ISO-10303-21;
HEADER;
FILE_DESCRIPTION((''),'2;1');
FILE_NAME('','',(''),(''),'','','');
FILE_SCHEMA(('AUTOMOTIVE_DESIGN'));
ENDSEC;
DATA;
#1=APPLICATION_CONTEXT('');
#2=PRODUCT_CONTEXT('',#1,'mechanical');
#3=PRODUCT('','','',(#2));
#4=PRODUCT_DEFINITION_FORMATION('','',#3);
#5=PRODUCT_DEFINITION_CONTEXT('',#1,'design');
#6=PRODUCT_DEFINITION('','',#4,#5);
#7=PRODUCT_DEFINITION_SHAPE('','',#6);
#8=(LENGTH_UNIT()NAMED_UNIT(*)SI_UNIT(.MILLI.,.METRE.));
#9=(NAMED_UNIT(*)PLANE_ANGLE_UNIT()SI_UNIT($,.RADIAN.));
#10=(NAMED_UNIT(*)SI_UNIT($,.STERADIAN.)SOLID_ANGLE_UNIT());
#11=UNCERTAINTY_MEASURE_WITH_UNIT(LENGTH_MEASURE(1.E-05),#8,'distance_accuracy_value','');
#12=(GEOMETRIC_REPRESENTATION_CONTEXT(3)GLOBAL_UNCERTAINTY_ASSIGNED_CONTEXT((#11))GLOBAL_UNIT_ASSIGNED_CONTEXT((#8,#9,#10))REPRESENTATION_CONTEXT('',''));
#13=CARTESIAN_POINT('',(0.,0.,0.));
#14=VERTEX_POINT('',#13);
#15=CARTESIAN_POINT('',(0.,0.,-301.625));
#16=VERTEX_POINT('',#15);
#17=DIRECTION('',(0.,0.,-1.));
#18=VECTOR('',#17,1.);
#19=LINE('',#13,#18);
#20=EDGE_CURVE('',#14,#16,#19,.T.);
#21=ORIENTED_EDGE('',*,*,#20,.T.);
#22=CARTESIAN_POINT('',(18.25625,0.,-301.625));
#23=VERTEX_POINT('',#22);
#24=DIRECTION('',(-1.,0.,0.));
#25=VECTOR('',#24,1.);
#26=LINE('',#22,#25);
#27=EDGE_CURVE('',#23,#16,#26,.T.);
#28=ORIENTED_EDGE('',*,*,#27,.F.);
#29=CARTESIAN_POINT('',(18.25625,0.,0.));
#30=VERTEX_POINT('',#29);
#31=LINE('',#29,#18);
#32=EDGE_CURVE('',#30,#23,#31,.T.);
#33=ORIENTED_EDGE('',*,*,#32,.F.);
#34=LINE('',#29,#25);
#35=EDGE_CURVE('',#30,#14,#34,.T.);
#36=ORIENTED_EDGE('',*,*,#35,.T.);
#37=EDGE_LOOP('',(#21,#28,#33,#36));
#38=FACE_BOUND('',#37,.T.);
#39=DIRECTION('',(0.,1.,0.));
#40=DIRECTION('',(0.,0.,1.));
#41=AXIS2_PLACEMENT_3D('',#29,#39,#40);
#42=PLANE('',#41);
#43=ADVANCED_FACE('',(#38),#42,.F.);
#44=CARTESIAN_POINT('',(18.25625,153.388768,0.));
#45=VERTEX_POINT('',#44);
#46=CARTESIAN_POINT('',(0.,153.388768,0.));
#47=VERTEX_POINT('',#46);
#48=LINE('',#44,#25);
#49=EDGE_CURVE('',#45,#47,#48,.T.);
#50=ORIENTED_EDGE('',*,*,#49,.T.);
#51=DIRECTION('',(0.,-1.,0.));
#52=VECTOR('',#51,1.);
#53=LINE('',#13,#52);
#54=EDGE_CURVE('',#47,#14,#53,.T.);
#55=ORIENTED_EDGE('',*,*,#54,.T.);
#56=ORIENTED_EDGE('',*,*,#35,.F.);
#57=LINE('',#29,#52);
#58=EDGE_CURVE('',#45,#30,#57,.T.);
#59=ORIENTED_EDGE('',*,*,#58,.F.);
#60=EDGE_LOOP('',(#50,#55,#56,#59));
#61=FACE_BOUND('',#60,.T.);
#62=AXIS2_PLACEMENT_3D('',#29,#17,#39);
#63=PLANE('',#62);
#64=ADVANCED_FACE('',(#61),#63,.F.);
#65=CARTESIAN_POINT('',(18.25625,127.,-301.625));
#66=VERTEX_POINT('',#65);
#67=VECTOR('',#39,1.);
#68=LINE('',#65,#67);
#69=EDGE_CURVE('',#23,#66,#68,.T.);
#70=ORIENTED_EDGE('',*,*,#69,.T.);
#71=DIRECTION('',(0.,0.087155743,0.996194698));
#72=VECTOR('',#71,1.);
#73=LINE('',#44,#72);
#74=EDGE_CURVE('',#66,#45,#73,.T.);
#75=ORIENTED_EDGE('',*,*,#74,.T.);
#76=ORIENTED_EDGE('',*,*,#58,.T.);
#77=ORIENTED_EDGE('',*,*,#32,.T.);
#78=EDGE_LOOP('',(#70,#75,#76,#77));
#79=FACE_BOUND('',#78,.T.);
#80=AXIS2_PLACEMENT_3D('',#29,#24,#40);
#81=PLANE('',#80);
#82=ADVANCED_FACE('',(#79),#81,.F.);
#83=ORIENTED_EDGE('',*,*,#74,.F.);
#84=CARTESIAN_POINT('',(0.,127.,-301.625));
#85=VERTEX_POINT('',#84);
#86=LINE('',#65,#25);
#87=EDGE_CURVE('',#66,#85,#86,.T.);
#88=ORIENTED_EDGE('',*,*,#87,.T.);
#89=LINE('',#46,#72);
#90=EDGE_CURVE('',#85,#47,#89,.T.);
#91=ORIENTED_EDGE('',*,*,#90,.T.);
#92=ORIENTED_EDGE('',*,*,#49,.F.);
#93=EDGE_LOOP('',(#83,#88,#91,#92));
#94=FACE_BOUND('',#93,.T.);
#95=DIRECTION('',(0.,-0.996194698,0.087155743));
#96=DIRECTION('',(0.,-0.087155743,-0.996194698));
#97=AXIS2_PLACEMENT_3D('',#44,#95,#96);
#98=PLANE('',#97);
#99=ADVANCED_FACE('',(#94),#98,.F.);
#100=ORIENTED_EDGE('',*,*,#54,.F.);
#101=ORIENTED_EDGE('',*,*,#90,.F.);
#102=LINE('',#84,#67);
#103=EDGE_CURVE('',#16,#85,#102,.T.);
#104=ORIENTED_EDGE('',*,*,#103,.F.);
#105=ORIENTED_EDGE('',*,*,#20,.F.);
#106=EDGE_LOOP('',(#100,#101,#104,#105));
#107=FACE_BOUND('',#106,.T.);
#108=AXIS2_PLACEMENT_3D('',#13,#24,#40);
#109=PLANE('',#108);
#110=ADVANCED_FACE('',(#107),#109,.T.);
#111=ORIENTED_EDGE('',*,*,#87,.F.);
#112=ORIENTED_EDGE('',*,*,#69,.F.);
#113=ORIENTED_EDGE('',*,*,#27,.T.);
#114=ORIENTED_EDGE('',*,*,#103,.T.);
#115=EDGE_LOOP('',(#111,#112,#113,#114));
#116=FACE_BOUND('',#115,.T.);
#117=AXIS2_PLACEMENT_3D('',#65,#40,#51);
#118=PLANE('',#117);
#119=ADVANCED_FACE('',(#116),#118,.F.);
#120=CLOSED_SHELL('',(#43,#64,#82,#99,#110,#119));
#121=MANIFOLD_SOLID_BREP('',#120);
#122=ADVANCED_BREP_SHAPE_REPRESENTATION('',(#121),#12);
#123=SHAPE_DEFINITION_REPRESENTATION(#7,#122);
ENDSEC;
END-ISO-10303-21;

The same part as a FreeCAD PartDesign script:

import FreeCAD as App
import Part
import Sketcher
Q = App.Units.Quantity


def add_polygon(sketch, points):
    """Adds a closed chain of lines whose ends are joined by coincident constraints."""
    first, n = sketch.GeometryCount, len(points)
    for a, b in zip(points, points[1:] + points[:1]):
        sketch.addGeometry(Part.LineSegment(App.Vector(*a, 0), App.Vector(*b, 0)), False)
    for i in range(n):
        sketch.addConstraint(Sketcher.Constraint("Coincident", first + i, 2, first + (i + 1) % n, 1))

doc = App.newDocument("Part")
body = doc.addObject("PartDesign::Body", "Body")

# Sketch on YZ plane
sketch1 = doc.addObject("Sketcher::SketchObject", "Sketch")
body.addObject(sketch1)
sketch1.AttachmentSupport = (doc.YZ_Plane, [""])
sketch1.MapMode = "FlatFace"
add_polygon(sketch1, [(0, 0), (0, -301.625), (127, -301.625), (153.388768, 0)])  # lines 0-3
sketch1.addConstraint(Sketcher.Constraint("Vertical", 0))
sketch1.addConstraint(Sketcher.Constraint("Horizontal", 1))
sketch1.addConstraint(Sketcher.Constraint("Horizontal", 3))
sketch1.addConstraint(Sketcher.Constraint("Coincident", 3, 2, -1, 1))
sketch1.addConstraint(Sketcher.Constraint("DistanceX", 1, 1, 1, 2, Q("5 in")))
sketch1.addConstraint(Sketcher.Constraint("Angle", 2, Q("85 deg")))
sketch1.addConstraint(Sketcher.Constraint("DistanceY", 0, 2, 0, 1, Q("11.875 in")))
pad1 = doc.addObject("PartDesign::Pad", "Pad")
body.addObject(pad1)
pad1.Profile = sketch1
pad1.Length = Q("0.71875 in")

doc.recompute()
